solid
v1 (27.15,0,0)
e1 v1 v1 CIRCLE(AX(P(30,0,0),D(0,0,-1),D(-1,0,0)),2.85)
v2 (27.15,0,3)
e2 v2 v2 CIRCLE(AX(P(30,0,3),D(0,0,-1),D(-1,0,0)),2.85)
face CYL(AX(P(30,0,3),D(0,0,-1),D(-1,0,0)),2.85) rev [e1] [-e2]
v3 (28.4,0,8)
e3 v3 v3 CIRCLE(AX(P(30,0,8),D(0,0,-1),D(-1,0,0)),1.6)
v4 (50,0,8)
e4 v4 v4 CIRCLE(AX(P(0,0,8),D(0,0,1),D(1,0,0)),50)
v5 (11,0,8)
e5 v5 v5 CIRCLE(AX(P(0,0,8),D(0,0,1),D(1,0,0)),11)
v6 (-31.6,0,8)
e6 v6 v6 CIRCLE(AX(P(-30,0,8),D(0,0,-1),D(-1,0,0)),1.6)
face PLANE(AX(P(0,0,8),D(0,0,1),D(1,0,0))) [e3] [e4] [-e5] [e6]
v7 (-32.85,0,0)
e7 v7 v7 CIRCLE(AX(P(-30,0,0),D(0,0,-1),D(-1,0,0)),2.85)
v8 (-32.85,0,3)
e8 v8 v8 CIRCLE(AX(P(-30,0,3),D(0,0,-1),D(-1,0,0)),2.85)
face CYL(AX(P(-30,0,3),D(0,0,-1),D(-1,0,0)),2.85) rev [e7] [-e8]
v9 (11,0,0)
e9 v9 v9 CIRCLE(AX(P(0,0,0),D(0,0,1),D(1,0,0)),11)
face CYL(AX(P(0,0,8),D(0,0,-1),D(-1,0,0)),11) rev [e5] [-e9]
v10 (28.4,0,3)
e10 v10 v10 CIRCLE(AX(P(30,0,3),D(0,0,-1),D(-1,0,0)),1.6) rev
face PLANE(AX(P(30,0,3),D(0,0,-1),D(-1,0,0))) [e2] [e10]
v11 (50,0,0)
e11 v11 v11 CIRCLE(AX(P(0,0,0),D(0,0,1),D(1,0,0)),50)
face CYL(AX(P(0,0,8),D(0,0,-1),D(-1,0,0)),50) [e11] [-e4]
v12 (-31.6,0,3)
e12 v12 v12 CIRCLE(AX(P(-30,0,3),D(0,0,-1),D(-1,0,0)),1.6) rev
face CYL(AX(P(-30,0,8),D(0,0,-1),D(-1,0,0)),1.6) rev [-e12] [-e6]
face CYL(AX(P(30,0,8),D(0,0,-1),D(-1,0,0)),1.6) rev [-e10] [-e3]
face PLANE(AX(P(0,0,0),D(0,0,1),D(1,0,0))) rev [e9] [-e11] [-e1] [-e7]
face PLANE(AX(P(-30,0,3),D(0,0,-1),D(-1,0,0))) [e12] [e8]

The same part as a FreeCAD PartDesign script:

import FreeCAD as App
import Part
import Sketcher

doc = App.newDocument("Part")
body = doc.addObject("PartDesign::Body", "Body")

# Sketch on XY plane
sketch1 = doc.addObject("Sketcher::SketchObject", "Sketch")
body.addObject(sketch1)
sketch1.AttachmentSupport = (doc.XY_Plane, [""])
sketch1.MapMode = "FlatFace"
sketch1.addGeometry(Part.Circle(App.Vector(0, 0, 0), App.Vector(0, 0, 1), 50), False)
sketch1.addGeometry(Part.Circle(App.Vector(0, 0, 0), App.Vector(0, 0, 1), 11), False)
sketch1.addConstraint(Sketcher.Constraint("Coincident", 0, 3, -1, 1))
sketch1.addConstraint(Sketcher.Constraint("Coincident", 1, 3, -1, 1))
sketch1.addConstraint(Sketcher.Constraint("Diameter", 0, 100.0))
sketch1.addConstraint(Sketcher.Constraint("Diameter", 1, 22.0))
pad1 = doc.addObject("PartDesign::Pad", "Pad")
body.addObject(pad1)
pad1.Profile = sketch1
pad1.Length = 8

# Sketch on XY plane
sketch2 = doc.addObject("Sketcher::SketchObject", "Sketch001")
body.addObject(sketch2)
sketch2.AttachmentSupport = (doc.XY_Plane, [""])
sketch2.MapMode = "FlatFace"
sketch2.addGeometry(Part.Circle(App.Vector(-30, 0, 0), App.Vector(0, 0, 1), 1.6), False)
sketch2.addGeometry(Part.Circle(App.Vector(30, 0, 0), App.Vector(0, 0, 1), 1.6), False)
sketch2.addConstraint(Sketcher.Constraint("Equal", 0, 1))
sketch2.addConstraint(Sketcher.Constraint("Symmetric", 0, 3, 1, 3, -1, 1))
sketch2.addConstraint(Sketcher.Constraint("PointOnObject", 0, 3, -1))
sketch2.addConstraint(Sketcher.Constraint("Diameter", 0, 3.2))
sketch2.addConstraint(Sketcher.Constraint("DistanceX", 0, 3, -1, 1, 30.0))
pocket1 = doc.addObject("PartDesign::Pocket", "Pocket")
body.addObject(pocket1)
pocket1.Profile = sketch2
pocket1.Type = "ThroughAll"
pocket1.Reversed = True

# Sketch on XY plane
sketch3 = doc.addObject("Sketcher::SketchObject", "Sketch002")
body.addObject(sketch3)
sketch3.AttachmentSupport = (doc.XY_Plane, [""])
sketch3.MapMode = "FlatFace"
sketch3.addGeometry(Part.Circle(App.Vector(-30, 0, 0), App.Vector(0, 0, 1), 2.85), False)
sketch3.addGeometry(Part.Circle(App.Vector(30, 0, 0), App.Vector(0, 0, 1), 2.85), False)
sketch3.addConstraint(Sketcher.Constraint("Equal", 0, 1))
sketch3.addConstraint(Sketcher.Constraint("Symmetric", 0, 3, 1, 3, -1, 1))
sketch3.addConstraint(Sketcher.Constraint("PointOnObject", 0, 3, -1))
sketch3.addConstraint(Sketcher.Constraint("Diameter", 0, 5.7))
sketch3.addConstraint(Sketcher.Constraint("DistanceX", 0, 3, -1, 1, 30.0))
pocket2 = doc.addObject("PartDesign::Pocket", "Pocket001")
body.addObject(pocket2)
pocket2.Profile = sketch3
pocket2.Length = 3
pocket2.Reversed = True

doc.recompute()
